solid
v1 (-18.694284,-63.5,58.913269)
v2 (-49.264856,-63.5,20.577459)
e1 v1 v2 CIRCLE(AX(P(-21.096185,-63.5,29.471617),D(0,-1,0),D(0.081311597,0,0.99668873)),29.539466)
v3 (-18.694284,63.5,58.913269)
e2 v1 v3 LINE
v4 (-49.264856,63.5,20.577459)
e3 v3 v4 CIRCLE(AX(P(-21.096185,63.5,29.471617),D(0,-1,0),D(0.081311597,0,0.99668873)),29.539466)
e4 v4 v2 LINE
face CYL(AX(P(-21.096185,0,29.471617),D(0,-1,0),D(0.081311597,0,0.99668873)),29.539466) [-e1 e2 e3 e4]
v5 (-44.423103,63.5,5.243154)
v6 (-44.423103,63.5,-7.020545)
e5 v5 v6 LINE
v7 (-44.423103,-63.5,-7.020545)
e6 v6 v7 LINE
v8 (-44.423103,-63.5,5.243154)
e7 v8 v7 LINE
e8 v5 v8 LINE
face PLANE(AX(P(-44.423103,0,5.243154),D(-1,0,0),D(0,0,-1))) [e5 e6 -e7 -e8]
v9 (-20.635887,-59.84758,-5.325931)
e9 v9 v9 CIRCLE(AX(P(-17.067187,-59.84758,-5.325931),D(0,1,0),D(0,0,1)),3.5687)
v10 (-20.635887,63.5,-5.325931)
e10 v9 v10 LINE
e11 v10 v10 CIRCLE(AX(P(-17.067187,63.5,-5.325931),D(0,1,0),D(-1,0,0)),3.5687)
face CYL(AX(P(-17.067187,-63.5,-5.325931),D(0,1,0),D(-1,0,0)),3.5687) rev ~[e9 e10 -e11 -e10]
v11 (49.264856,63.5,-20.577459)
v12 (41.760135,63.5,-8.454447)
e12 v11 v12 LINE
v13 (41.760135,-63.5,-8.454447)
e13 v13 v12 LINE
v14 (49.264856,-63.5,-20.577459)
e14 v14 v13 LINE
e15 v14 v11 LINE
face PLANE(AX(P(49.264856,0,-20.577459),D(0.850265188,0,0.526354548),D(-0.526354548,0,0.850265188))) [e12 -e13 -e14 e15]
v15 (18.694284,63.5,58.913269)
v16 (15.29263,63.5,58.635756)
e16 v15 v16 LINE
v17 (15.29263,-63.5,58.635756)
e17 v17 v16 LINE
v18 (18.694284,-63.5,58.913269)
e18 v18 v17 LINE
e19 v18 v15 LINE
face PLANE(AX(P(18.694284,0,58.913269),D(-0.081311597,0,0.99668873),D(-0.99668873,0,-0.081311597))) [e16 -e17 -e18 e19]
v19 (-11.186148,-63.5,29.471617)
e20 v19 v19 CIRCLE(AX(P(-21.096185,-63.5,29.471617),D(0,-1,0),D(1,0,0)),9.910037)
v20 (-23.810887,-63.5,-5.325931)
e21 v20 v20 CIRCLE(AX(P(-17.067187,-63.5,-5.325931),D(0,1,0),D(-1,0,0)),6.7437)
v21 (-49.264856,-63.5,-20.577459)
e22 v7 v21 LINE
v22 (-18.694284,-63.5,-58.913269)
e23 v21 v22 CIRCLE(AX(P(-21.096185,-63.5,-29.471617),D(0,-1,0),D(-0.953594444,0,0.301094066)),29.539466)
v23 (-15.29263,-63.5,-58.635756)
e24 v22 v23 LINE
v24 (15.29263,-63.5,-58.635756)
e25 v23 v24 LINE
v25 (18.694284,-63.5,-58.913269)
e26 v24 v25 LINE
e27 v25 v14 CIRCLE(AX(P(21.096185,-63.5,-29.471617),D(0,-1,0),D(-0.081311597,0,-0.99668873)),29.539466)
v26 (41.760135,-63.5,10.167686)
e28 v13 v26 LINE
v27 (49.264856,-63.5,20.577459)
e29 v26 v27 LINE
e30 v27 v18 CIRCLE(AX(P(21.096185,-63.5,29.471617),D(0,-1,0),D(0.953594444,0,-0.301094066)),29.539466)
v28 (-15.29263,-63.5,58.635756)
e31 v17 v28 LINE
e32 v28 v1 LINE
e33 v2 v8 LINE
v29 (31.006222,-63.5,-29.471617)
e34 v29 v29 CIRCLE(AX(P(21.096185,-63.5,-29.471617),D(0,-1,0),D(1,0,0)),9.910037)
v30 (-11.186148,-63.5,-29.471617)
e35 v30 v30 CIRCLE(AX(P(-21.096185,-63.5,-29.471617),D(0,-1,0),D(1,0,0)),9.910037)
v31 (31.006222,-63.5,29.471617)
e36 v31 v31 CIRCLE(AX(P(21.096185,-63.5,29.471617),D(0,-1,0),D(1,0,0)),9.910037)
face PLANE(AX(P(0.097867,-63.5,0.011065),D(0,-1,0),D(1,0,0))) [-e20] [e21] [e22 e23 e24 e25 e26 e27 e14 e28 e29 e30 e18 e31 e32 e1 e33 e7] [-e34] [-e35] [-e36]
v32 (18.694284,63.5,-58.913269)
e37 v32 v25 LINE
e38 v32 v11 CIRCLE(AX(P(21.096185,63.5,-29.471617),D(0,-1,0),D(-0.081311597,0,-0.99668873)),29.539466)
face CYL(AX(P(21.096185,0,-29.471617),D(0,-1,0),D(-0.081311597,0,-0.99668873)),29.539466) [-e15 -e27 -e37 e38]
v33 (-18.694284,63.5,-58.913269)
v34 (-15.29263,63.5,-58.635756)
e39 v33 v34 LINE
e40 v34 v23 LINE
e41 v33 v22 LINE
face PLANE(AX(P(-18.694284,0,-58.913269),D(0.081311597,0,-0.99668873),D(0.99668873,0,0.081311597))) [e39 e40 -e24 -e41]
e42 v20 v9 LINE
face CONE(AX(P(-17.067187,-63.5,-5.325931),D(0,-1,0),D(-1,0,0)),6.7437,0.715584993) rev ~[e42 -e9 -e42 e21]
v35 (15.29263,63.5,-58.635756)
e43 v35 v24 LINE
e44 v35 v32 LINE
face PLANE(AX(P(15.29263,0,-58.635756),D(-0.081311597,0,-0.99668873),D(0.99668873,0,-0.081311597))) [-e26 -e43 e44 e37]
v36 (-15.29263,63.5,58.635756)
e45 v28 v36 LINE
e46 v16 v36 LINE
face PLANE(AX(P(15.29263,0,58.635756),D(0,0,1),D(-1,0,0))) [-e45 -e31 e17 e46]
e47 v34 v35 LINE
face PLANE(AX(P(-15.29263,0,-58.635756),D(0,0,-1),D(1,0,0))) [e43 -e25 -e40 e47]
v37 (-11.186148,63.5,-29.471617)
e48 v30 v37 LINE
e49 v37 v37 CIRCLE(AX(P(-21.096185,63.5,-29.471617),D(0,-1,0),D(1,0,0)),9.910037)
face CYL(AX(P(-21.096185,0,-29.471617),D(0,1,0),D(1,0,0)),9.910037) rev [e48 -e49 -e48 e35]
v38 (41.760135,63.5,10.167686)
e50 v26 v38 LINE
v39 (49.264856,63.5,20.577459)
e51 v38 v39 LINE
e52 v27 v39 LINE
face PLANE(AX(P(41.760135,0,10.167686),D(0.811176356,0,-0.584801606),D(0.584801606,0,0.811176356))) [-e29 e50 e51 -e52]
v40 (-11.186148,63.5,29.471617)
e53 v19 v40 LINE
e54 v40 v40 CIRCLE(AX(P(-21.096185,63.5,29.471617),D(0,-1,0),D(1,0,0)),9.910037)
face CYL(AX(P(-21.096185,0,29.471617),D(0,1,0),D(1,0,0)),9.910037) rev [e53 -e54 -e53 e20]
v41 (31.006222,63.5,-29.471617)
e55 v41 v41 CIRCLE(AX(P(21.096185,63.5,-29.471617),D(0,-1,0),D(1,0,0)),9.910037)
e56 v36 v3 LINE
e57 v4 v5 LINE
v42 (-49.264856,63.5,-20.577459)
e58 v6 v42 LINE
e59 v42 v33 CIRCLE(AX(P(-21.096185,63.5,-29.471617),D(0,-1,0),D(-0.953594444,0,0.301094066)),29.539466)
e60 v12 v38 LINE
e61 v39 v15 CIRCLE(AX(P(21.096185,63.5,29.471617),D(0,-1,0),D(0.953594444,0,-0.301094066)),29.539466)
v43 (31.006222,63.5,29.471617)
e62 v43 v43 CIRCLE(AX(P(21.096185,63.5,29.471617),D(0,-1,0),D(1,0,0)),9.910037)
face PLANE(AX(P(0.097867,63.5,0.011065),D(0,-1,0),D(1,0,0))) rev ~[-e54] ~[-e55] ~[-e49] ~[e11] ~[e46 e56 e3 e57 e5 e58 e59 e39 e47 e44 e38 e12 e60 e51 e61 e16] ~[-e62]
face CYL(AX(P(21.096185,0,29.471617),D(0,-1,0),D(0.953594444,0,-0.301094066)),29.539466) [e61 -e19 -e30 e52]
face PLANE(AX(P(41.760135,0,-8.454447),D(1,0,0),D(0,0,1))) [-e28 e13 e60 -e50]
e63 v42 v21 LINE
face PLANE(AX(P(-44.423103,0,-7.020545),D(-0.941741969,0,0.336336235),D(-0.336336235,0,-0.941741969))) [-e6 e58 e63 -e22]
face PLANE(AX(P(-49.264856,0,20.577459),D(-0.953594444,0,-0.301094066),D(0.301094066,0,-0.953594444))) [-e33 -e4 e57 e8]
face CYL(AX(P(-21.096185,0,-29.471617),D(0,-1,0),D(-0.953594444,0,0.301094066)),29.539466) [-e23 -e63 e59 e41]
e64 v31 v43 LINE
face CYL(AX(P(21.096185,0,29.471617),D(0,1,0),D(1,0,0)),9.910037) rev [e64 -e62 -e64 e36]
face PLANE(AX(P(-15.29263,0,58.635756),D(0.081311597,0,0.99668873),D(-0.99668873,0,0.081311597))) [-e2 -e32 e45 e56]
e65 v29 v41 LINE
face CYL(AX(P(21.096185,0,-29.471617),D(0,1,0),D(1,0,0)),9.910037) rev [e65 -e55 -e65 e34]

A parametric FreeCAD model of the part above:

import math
import FreeCAD as App
import Part
import Sketcher
Q = App.Units.Quantity

doc = App.newDocument("Part")
params = doc.addObject("Spreadsheet::Sheet", "Params")
for row, (alias, value) in enumerate([
    ("pad1_length", "5 in"),
    ("sketch2_diameter", "0.281 in"),
    ("hole_diameter", "0.281 in"),
    ("hole_csink_diameter", "0.531 in"),
], start=1):
    params.set(f"A{row}", alias)
    params.set(f"B{row}", "=" + value)
    params.setAlias(f"B{row}", alias)

body = doc.addObject("PartDesign::Body", "Body")

# Sketch on XZ plane
sketch1 = body.newObject("Sketcher::SketchObject", "Sketch")
sketch1.AttachmentSupport = (doc.getObject("XZ_Plane"), [""])
sketch1.MapMode = "FlatFace"
sketch1.addGeometry([
    Part.ArcOfCircle(Part.Circle(App.Vector(-21.1, 29.5, 0), App.Vector(0, 0, 1), 29.5), math.radians(85), math.radians(198)),  # 0
    Part.LineSegment(App.Vector(-49.3, 20.6, 0), App.Vector(-44.4, 5.2, 0)),  # 1
    Part.LineSegment(App.Vector(-44.4, 5.2, 0), App.Vector(-44.4, -7, 0)),  # 2
    Part.LineSegment(App.Vector(-44.4, -7, 0), App.Vector(-49.3, -20.6, 0)),  # 3
    Part.ArcOfCircle(Part.Circle(App.Vector(-21.1, -29.5, 0), App.Vector(0, 0, 1), 29.5), math.radians(162), math.radians(275)),  # 4
    Part.LineSegment(App.Vector(-18.7, -58.9, 0), App.Vector(-15.3, -58.6, 0)),  # 5
    Part.LineSegment(App.Vector(-15.3, -58.6, 0), App.Vector(15.3, -58.6, 0)),  # 6
    Part.LineSegment(App.Vector(15.3, -58.6, 0), App.Vector(18.7, -58.9, 0)),  # 7
    Part.ArcOfCircle(Part.Circle(App.Vector(21.1, -29.5, 0), App.Vector(0, 0, 1), 29.5), math.radians(-95), math.radians(18)),  # 8
    Part.LineSegment(App.Vector(49.3, -20.6, 0), App.Vector(41.8, -8.5, 0)),  # 9
    Part.LineSegment(App.Vector(41.8, -8.5, 0), App.Vector(41.8, 10.2, 0)),  # 10
    Part.LineSegment(App.Vector(41.8, 10.2, 0), App.Vector(49.3, 20.6, 0)),  # 11
    Part.ArcOfCircle(Part.Circle(App.Vector(21.1, 29.5, 0), App.Vector(0, 0, 1), 29.5), math.radians(-18), math.radians(95)),  # 12
    Part.LineSegment(App.Vector(18.7, 58.9, 0), App.Vector(15.3, 58.6, 0)),  # 13
    Part.LineSegment(App.Vector(15.3, 58.6, 0), App.Vector(-15.3, 58.6, 0)),  # 14
    Part.LineSegment(App.Vector(-15.3, 58.6, 0), App.Vector(-18.7, 58.9, 0)),  # 15
    Part.Circle(App.Vector(-21.1, -29.5, 0), App.Vector(0, 0, 1), 9.9),  # 16
    Part.Circle(App.Vector(21.1, -29.5, 0), App.Vector(0, 0, 1), 9.9),  # 17
    Part.Circle(App.Vector(-21.1, 29.5, 0), App.Vector(0, 0, 1), 9.9),  # 18
    Part.Circle(App.Vector(21.1, 29.5, 0), App.Vector(0, 0, 1), 9.9),  # 19
], False)
sketch1.addConstraint([
    Sketcher.Constraint("Tangent", 0, 2, 1, 1),
    Sketcher.Constraint("Coincident", 1, 2, 2, 1),
    Sketcher.Constraint("Coincident", 2, 2, 3, 1),
    Sketcher.Constraint("Coincident", 3, 2, 4, 1),
    Sketcher.Constraint("Tangent", 4, 2, 5, 1),
    Sketcher.Constraint("Coincident", 5, 2, 6, 1),
    Sketcher.Constraint("Coincident", 6, 2, 7, 1),
    Sketcher.Constraint("Tangent", 7, 2, 8, 1),
    Sketcher.Constraint("Coincident", 8, 2, 9, 1),
    Sketcher.Constraint("Coincident", 9, 2, 10, 1),
    Sketcher.Constraint("Coincident", 10, 2, 11, 1),
    Sketcher.Constraint("Coincident", 11, 2, 12, 1),
    Sketcher.Constraint("Tangent", 12, 2, 13, 1),
    Sketcher.Constraint("Coincident", 13, 2, 14, 1),
    Sketcher.Constraint("Coincident", 14, 2, 15, 1),
    Sketcher.Constraint("Tangent", 15, 2, 0, 1),
    Sketcher.Constraint("Vertical", 2),
    Sketcher.Constraint("Horizontal", 6),
    Sketcher.Constraint("Vertical", 10),
    Sketcher.Constraint("Horizontal", 14),
    Sketcher.Constraint("Coincident", 16, 3, 4, 3),
    Sketcher.Constraint("Coincident", 17, 3, 8, 3),
    Sketcher.Constraint("Coincident", 18, 3, 0, 3),
    Sketcher.Constraint("Coincident", 19, 3, 12, 3),
    Sketcher.Constraint("Equal", 0, 4),
    Sketcher.Constraint("Equal", 4, 8),
    Sketcher.Constraint("Equal", 8, 12),
    Sketcher.Constraint("Equal", 16, 17),
    Sketcher.Constraint("Equal", 17, 18),
    Sketcher.Constraint("Equal", 18, 19),
    Sketcher.Constraint("Symmetric", 0, 3, 8, 3, -1, 1),
    Sketcher.Constraint("Symmetric", 4, 3, 12, 3, -1, 1),
    Sketcher.Constraint("Symmetric", 5, 2, 13, 2, -1, 1),
    Sketcher.Constraint("Symmetric", 4, 3, 8, 3, -2),
    Sketcher.Constraint("Parallel", 7, 15),
    Sketcher.Constraint("Horizontal", 4, 2, 7, 2),
    Sketcher.Constraint("Horizontal", 3, 2, 8, 2),
    Sketcher.Constraint("Horizontal", 0, 2, 11, 2),
    Sketcher.Constraint("Vertical", 0, 2, 3, 2),
    Sketcher.Constraint("Diameter", 16, Q("19.820074 mm")),
    Sketcher.Constraint("DistanceY", 2, 2, 2, 1, Q("12.263699 mm")),
    Sketcher.Constraint("DistanceY", -1, 1, 0, 3, Q("1.1602999 in")),
    Sketcher.Constraint("DistanceX", -1, 1, 9, 2, Q("1.6440998 in")),
    Sketcher.Constraint("Radius", 0, Q("29.539466 mm")),
    Sketcher.Constraint("DistanceX", 6, 1, 6, 2, Q("30.58526 mm")),
    Sketcher.Constraint("DistanceX", 4, 3, 4, 2, Q("2.401901 mm")),
    Sketcher.Constraint("Distance", 1, Q("16.080531 mm")),
    Sketcher.Constraint("Distance", 3, Q("14.395572 mm")),
    Sketcher.Constraint("Distance", 9, Q("14.257918 mm")),
    Sketcher.Constraint("DistanceY", 10, 1, 10, 2, Q("18.622133 mm")),
    Sketcher.Constraint("DistanceX", 4, 3, 8, 3, Q("42.19237 mm")),
])
pad1 = body.newObject("PartDesign::Pad", "Pad")
pad1.Profile = sketch1
pad1.setExpression("Length", "Params.pad1_length")
pad1.Midplane = True

# Sketch on XZ plane
sketch2 = body.newObject("Sketcher::SketchObject", "Sketch001")
sketch2.AttachmentSupport = (doc.getObject("XZ_Plane"), [""])
sketch2.MapMode = "FlatFace"
sketch2.AttachmentOffset = App.Placement(App.Vector(0, 0, 2.5 * 25.4), App.Rotation())
sketch2.addGeometry(Part.Circle(App.Vector(-17.1, -5.3, 0), App.Vector(0, 0, 1), 3.6), False)
sketch2.addConstraint([
    Sketcher.Constraint("Diameter", 0, Q("0.281 in")),
    Sketcher.Constraint("DistanceY", 0, 3, -1, 1, Q("5.325931 mm")),
    Sketcher.Constraint("DistanceX", 0, 3, -1, 1, Q("17.067187 mm")),
])
sketch2.setExpression("Constraints[0]", "Params.sketch2_diameter")
doc.recompute()
hole = body.newObject("PartDesign::Hole", "Hole")
hole.Profile = sketch2
hole.ThreadType = "None"
hole.setExpression("Diameter", "Params.hole_diameter")
hole.DepthType = "ThroughAll"
hole.HoleCutType = "Countersink"
hole.setExpression("HoleCutDiameter", "Params.hole_csink_diameter")
hole.HoleCutCountersinkAngle = 82

doc.recompute()
